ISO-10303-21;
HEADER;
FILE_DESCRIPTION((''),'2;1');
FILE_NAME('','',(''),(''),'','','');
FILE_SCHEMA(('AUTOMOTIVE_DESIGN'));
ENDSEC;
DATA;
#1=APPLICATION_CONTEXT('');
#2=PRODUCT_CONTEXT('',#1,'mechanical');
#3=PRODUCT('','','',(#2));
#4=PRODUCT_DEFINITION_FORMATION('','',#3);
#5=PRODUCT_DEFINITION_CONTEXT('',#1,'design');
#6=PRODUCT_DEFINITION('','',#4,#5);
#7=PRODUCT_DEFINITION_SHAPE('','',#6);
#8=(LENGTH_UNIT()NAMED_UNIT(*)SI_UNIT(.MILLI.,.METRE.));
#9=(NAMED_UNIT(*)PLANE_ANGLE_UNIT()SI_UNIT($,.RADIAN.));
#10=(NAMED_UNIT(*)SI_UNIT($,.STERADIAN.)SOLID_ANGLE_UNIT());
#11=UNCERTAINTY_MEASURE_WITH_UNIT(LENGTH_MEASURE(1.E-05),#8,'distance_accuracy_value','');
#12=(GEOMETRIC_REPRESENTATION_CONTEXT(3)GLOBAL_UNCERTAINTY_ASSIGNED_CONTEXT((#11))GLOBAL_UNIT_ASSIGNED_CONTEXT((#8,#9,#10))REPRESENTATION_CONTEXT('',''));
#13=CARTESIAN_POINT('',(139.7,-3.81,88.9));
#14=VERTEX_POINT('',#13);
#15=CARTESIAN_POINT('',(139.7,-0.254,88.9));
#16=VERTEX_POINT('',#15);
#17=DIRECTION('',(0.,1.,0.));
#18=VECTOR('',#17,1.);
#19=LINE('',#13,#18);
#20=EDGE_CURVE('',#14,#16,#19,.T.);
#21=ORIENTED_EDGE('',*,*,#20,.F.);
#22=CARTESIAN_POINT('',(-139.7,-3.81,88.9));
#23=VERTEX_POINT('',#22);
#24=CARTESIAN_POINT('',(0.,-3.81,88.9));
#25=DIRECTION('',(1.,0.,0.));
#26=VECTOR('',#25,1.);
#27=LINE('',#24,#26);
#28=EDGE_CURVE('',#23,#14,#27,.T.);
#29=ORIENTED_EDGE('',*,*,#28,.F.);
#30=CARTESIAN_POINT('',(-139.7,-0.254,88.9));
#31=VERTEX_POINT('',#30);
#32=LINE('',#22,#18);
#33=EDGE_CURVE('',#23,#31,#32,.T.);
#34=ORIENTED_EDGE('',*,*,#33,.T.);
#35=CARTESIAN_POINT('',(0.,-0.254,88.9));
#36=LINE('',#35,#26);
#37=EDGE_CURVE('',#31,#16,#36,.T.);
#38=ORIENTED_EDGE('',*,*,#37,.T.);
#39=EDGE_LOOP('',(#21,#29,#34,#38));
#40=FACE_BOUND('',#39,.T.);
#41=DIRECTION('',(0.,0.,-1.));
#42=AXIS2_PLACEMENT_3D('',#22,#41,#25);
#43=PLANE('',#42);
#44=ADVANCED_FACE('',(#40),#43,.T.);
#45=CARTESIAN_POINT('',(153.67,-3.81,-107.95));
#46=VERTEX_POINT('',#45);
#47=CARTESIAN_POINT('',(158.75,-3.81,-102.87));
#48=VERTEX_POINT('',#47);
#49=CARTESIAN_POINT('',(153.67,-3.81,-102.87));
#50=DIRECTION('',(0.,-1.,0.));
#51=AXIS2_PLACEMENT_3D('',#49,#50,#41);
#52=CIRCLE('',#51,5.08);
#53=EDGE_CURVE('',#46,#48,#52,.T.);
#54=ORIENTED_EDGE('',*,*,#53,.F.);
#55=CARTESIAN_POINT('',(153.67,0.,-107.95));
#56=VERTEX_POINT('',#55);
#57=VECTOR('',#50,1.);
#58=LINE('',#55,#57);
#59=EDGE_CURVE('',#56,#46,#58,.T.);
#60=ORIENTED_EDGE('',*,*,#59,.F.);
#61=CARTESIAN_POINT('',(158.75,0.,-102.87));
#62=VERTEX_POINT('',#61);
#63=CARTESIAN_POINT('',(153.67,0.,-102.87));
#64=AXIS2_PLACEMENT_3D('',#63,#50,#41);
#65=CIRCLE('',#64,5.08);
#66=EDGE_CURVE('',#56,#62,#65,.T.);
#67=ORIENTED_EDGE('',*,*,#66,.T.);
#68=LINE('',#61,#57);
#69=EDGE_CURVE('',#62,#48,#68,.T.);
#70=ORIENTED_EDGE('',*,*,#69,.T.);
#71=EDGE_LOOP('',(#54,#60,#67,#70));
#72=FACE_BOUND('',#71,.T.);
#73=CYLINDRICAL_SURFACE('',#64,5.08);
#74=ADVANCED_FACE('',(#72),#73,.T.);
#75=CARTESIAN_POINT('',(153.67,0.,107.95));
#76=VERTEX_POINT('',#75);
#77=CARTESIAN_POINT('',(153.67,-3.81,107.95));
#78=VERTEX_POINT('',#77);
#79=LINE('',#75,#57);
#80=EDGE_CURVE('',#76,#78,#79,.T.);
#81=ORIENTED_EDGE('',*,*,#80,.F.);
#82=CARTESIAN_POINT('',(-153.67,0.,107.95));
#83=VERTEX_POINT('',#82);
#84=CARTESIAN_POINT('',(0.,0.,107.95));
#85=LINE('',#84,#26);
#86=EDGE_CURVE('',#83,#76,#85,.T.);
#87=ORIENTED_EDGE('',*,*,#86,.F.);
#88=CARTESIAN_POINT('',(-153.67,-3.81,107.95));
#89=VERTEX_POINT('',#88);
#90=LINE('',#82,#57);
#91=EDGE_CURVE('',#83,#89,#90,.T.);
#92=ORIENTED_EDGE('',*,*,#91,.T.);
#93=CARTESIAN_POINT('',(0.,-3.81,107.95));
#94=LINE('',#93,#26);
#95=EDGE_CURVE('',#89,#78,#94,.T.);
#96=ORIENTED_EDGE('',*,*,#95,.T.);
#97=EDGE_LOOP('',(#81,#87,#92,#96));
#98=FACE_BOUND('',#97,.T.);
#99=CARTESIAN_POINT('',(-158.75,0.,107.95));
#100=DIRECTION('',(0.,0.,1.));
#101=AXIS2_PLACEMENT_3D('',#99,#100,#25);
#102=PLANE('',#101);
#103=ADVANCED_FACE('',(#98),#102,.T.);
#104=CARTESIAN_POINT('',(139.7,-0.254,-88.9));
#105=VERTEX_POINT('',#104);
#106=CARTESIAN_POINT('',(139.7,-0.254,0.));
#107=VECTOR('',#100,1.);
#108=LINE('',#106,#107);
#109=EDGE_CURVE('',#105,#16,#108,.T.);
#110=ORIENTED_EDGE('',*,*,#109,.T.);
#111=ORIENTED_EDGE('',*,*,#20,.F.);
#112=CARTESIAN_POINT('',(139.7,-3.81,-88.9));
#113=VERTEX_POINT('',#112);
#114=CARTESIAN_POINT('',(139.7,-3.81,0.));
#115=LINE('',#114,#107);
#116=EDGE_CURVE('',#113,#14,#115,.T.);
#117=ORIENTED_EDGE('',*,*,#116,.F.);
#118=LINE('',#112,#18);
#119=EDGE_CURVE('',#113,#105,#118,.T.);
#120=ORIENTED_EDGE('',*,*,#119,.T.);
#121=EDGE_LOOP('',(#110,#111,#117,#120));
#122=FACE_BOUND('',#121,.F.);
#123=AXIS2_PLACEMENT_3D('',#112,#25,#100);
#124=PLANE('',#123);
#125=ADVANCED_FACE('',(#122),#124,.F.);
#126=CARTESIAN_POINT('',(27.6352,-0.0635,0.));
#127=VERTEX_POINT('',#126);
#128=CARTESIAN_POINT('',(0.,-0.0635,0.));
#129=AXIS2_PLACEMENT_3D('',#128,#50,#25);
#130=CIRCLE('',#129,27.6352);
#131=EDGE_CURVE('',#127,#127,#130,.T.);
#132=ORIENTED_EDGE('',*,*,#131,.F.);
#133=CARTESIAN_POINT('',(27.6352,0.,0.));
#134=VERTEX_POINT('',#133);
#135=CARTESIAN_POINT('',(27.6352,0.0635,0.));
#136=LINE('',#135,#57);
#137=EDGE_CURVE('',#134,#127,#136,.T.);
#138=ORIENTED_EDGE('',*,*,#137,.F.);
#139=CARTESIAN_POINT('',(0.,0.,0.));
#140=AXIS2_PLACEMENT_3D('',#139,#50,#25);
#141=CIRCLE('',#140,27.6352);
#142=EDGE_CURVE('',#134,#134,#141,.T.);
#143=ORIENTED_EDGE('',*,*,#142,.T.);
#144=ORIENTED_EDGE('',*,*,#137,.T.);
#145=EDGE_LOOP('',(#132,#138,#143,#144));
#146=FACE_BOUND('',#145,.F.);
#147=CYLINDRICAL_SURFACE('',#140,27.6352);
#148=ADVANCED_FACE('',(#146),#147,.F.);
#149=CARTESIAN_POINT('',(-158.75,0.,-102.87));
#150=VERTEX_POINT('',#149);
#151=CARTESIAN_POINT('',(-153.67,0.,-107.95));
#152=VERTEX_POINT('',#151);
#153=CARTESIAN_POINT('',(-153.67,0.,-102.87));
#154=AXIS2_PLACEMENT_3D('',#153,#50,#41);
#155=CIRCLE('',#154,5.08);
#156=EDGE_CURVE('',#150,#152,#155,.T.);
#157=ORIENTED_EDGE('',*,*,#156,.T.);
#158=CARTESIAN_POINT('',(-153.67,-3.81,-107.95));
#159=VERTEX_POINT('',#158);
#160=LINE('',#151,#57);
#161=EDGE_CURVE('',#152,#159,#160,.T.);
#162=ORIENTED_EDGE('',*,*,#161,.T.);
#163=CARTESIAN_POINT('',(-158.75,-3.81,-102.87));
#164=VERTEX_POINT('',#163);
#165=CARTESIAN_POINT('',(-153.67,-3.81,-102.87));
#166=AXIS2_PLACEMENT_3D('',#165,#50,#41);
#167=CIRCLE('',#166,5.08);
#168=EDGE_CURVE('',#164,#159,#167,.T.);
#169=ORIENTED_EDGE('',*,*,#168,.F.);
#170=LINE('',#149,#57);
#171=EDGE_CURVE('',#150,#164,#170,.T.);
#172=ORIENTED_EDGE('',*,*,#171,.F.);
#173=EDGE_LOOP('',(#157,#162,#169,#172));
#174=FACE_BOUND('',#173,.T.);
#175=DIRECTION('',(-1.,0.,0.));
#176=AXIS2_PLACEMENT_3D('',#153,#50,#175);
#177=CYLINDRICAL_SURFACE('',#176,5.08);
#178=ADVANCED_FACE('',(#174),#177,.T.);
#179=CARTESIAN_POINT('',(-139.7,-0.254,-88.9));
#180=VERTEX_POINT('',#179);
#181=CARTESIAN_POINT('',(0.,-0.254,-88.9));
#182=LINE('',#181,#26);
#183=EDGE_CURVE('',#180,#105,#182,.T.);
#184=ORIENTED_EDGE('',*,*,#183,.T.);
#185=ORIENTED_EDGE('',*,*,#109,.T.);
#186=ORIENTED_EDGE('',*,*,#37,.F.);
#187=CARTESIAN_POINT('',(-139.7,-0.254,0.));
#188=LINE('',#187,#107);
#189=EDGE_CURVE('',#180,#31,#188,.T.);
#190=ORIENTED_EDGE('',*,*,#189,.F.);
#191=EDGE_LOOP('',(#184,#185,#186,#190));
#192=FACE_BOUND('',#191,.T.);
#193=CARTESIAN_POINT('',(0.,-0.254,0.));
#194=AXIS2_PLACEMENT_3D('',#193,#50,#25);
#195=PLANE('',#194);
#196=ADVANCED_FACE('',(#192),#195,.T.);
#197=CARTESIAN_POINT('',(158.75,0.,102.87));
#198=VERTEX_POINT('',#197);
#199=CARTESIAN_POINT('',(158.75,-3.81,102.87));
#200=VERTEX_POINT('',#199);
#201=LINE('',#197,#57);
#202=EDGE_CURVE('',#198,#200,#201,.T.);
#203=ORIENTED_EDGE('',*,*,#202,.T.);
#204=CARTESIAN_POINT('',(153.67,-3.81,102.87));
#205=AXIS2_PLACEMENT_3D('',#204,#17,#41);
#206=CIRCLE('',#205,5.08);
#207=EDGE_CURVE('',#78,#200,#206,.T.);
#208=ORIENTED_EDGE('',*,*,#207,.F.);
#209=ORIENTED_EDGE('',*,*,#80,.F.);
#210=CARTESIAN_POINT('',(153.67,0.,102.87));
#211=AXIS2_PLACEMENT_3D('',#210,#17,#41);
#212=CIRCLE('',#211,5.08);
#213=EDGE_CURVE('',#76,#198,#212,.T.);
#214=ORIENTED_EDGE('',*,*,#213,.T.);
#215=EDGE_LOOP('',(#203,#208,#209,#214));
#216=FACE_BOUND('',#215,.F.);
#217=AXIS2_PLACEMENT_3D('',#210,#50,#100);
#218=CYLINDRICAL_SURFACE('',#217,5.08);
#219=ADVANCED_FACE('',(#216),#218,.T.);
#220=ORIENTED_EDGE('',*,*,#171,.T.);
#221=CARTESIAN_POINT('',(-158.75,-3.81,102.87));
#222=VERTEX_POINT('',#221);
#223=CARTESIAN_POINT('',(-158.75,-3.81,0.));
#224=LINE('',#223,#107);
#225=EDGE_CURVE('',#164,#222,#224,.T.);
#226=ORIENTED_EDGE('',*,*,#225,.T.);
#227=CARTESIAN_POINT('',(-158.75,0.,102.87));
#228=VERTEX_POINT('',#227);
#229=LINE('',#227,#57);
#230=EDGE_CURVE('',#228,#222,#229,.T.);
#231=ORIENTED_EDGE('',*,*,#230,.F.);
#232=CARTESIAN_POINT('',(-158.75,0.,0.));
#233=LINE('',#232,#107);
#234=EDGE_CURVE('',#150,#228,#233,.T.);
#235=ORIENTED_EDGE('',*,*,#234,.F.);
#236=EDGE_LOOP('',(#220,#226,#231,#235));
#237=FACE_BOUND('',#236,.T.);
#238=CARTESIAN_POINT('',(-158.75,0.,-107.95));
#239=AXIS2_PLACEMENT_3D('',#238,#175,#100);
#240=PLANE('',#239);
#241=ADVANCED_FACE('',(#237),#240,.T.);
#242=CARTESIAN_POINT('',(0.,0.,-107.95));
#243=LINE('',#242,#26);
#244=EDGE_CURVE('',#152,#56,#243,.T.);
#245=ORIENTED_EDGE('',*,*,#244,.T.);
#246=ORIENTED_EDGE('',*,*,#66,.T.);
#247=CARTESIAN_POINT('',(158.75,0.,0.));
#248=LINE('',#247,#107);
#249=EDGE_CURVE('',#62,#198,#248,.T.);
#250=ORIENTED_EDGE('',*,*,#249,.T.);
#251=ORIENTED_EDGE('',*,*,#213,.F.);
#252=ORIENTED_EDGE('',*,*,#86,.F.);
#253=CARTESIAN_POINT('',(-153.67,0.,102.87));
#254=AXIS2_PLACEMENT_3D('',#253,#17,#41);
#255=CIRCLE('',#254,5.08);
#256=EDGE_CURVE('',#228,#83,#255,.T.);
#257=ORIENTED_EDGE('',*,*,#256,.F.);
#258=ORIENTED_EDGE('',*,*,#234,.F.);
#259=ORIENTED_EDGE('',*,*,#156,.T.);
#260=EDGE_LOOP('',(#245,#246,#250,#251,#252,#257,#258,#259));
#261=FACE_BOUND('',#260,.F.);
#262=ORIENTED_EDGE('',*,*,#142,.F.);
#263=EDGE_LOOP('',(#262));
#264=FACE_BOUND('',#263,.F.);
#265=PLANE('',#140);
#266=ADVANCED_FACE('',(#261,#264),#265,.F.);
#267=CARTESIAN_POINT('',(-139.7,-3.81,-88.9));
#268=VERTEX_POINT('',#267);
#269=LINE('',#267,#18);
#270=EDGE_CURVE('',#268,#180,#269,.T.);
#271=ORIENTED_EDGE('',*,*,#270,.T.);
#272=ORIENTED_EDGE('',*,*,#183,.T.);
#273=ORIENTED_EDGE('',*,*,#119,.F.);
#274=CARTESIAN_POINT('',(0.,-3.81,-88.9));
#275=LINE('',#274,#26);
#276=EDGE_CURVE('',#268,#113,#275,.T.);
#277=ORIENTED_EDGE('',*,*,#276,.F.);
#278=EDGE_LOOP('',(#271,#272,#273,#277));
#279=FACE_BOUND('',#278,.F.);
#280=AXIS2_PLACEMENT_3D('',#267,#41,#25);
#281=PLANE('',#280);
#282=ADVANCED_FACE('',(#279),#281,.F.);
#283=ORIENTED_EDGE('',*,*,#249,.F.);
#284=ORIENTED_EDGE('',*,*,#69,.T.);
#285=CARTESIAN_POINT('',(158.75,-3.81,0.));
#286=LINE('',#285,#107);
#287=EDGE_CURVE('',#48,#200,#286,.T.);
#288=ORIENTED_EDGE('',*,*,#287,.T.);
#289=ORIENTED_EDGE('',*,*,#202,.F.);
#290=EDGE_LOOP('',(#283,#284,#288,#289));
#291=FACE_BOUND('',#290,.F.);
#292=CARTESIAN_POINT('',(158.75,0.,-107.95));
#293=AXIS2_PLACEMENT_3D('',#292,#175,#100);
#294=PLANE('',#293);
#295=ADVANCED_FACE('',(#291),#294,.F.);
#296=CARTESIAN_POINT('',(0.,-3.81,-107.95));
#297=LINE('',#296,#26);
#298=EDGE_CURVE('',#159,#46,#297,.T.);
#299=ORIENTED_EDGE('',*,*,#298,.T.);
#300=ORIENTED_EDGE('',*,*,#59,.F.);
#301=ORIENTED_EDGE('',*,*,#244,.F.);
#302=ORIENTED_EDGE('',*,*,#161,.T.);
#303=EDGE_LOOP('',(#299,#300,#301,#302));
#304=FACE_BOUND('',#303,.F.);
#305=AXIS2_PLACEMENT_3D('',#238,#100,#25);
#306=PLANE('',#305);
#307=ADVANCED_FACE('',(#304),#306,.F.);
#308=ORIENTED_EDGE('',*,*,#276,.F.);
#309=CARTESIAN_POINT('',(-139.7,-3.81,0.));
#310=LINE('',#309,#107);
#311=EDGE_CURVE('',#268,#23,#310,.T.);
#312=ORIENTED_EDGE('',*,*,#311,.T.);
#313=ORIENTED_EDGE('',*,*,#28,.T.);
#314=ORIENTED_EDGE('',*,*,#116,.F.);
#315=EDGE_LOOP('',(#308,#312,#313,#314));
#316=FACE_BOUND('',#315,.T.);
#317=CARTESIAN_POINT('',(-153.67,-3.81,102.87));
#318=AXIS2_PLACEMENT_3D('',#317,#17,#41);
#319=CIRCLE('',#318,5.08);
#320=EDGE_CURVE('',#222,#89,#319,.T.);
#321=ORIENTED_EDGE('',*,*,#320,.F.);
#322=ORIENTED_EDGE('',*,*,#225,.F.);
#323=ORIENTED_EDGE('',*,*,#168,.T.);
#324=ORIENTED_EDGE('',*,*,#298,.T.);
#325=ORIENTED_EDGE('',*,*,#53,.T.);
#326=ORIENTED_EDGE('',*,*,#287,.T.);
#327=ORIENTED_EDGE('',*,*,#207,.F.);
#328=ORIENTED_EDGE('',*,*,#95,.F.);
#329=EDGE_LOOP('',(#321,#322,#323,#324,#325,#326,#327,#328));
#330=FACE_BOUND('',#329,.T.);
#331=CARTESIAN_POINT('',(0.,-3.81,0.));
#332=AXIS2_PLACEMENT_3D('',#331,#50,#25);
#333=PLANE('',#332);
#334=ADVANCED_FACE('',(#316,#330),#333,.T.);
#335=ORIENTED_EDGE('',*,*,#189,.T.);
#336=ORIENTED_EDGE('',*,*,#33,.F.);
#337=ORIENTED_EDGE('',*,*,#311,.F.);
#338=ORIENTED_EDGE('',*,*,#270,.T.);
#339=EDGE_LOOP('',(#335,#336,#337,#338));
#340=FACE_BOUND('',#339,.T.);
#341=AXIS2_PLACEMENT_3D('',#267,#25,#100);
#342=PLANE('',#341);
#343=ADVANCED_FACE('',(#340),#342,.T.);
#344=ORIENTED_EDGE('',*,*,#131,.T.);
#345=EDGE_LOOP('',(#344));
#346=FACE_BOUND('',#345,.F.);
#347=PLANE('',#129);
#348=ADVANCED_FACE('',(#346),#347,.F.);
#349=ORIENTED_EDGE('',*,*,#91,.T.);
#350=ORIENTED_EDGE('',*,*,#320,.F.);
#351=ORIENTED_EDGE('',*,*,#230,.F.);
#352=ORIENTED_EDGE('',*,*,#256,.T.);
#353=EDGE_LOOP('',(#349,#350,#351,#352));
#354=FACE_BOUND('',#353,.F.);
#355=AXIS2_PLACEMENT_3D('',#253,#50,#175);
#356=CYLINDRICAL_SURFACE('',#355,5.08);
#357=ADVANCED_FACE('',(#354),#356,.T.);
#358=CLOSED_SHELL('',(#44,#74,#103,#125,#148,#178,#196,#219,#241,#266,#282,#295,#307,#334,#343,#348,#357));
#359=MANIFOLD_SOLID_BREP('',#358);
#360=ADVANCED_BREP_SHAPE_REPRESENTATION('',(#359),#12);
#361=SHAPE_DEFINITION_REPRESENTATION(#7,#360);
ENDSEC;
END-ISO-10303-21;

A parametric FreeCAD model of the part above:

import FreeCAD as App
import Part
import Sketcher
Q = App.Units.Quantity


def edges_at(feature, points):
    """Names of the edges that pass closest to the given points."""
    edges = feature.Shape.Edges
    near = lambda p: min(range(len(edges)), key=lambda i: edges[i].distToShape(Part.Vertex(*p))[0])
    return sorted({f"Edge{near(p) + 1}" for p in points})

doc = App.newDocument("Part")
params = doc.addObject("Spreadsheet::Sheet", "Params")
for row, (alias, value) in enumerate([
    ("sketch1_width", "12.5 in"),
    ("sketch1_height", "8.5 in"),
    ("pad1_length", "0.15 in"),
    ("fillet_radius", "0.2 in"),
    ("fillet2_radius", "0.2 in"),
    ("sketch2_width", "11 in"),
    ("sketch2_height", "7 in"),
    ("pocket1_length", "1 in"),
    ("sketch3_width", "11 in"),
    ("sketch3_height", "7 in"),
    ("pad2_length", "0.01 in"),
    ("sketch4_diameter", "2.176 in"),
    ("pocket2_length", "0.005 in"),
], start=1):
    params.set(f"A{row}", alias)
    params.set(f"B{row}", "=" + value)
    params.setAlias(f"B{row}", alias)

body = doc.addObject("PartDesign::Body", "Body")

# Sketch on XZ plane
sketch1 = body.newObject("Sketcher::SketchObject", "Sketch")
sketch1.AttachmentSupport = (doc.getObject("XZ_Plane"), [""])
sketch1.MapMode = "FlatFace"
sketch1.addGeometry(Part.LineSegment(App.Vector(-159, 108, 0), App.Vector(-159, -108, 0)), False)
sketch1.addGeometry(Part.LineSegment(App.Vector(-159, -108, 0), App.Vector(159, -108, 0)), False)
sketch1.addGeometry(Part.LineSegment(App.Vector(159, -108, 0), App.Vector(159, 108, 0)), False)
sketch1.addGeometry(Part.LineSegment(App.Vector(159, 108, 0), App.Vector(-159, 108, 0)), False)
sketch1.addConstraint(Sketcher.Constraint("Coincident", 0, 2, 1, 1))
sketch1.addConstraint(Sketcher.Constraint("Coincident", 1, 2, 2, 1))
sketch1.addConstraint(Sketcher.Constraint("Coincident", 2, 2, 3, 1))
sketch1.addConstraint(Sketcher.Constraint("Coincident", 3, 2, 0, 1))
sketch1.addConstraint(Sketcher.Constraint("Vertical", 0))
sketch1.addConstraint(Sketcher.Constraint("Horizontal", 1))
sketch1.addConstraint(Sketcher.Constraint("Vertical", 2))
sketch1.addConstraint(Sketcher.Constraint("Horizontal", 3))
sketch1.addConstraint(Sketcher.Constraint("Symmetric", 0, 2, 2, 2, -1, 1))
sketch1.addConstraint(Sketcher.Constraint("DistanceX", 1, 1, 1, 2, Q("12.5 in")))
sketch1.addConstraint(Sketcher.Constraint("DistanceY", 0, 2, 0, 1, Q("8.5 in")))
sketch1.setExpression("Constraints[9]", "Params.sketch1_width")
sketch1.setExpression("Constraints[10]", "Params.sketch1_height")
pad1 = body.newObject("PartDesign::Pad", "Pad")
pad1.Profile = sketch1
pad1.setExpression("Length", "Params.pad1_length")
doc.recompute()

fillet = body.newObject("PartDesign::Fillet", "Fillet")
fillet.Base = (pad1, edges_at(pad1, [(-158.75, -1.905, -107.95)]))
fillet.setExpression("Radius", "Params.fillet_radius")
doc.recompute()

fillet2 = body.newObject("PartDesign::Fillet", "Fillet001")
fillet2.Base = (fillet, edges_at(fillet, [(-158.75, -1.905, 107.95), (158.75, -1.905, 107.95), (158.75, -1.905, -107.95)]))
fillet2.setExpression("Radius", "Params.fillet2_radius")

# Sketch on XZ plane
sketch2 = body.newObject("Sketcher::SketchObject", "Sketch001")
sketch2.AttachmentSupport = (doc.getObject("XZ_Plane"), [""])
sketch2.MapMode = "FlatFace"
sketch2.AttachmentOffset = App.Placement(App.Vector(0, 0, 0.15 * 25.4), App.Rotation())
sketch2.addGeometry(Part.LineSegment(App.Vector(-140, 89, 0), App.Vector(-140, -89, 0)), False)
sketch2.addGeometry(Part.LineSegment(App.Vector(-140, -89, 0), App.Vector(140, -89, 0)), False)
sketch2.addGeometry(Part.LineSegment(App.Vector(140, -89, 0), App.Vector(140, 89, 0)), False)
sketch2.addGeometry(Part.LineSegment(App.Vector(140, 89, 0), App.Vector(-140, 89, 0)), False)
sketch2.addConstraint(Sketcher.Constraint("Coincident", 0, 2, 1, 1))
sketch2.addConstraint(Sketcher.Constraint("Coincident", 1, 2, 2, 1))
sketch2.addConstraint(Sketcher.Constraint("Coincident", 2, 2, 3, 1))
sketch2.addConstraint(Sketcher.Constraint("Coincident", 3, 2, 0, 1))
sketch2.addConstraint(Sketcher.Constraint("Vertical", 0))
sketch2.addConstraint(Sketcher.Constraint("Horizontal", 1))
sketch2.addConstraint(Sketcher.Constraint("Vertical", 2))
sketch2.addConstraint(Sketcher.Constraint("Horizontal", 3))
sketch2.addConstraint(Sketcher.Constraint("Symmetric", 0, 2, 2, 2, -1, 1))
sketch2.addConstraint(Sketcher.Constraint("DistanceX", 1, 1, 1, 2, Q("11 in")))
sketch2.addConstraint(Sketcher.Constraint("DistanceY", 0, 2, 0, 1, Q("7 in")))
sketch2.setExpression("Constraints[9]", "Params.sketch2_width")
sketch2.setExpression("Constraints[10]", "Params.sketch2_height")
pocket1 = body.newObject("PartDesign::Pocket", "Pocket")
pocket1.Profile = sketch2
pocket1.setExpression("Length", "Params.pocket1_length")

# Sketch on XZ plane
sketch3 = body.newObject("Sketcher::SketchObject", "Sketch002")
sketch3.AttachmentSupport = (doc.getObject("XZ_Plane"), [""])
sketch3.MapMode = "FlatFace"
sketch3.addGeometry(Part.LineSegment(App.Vector(-140, 89, 0), App.Vector(-140, -89, 0)), False)
sketch3.addGeometry(Part.LineSegment(App.Vector(-140, -89, 0), App.Vector(140, -89, 0)), False)
sketch3.addGeometry(Part.LineSegment(App.Vector(140, -89, 0), App.Vector(140, 89, 0)), False)
sketch3.addGeometry(Part.LineSegment(App.Vector(140, 89, 0), App.Vector(-140, 89, 0)), False)
sketch3.addConstraint(Sketcher.Constraint("Coincident", 0, 2, 1, 1))
sketch3.addConstraint(Sketcher.Constraint("Coincident", 1, 2, 2, 1))
sketch3.addConstraint(Sketcher.Constraint("Coincident", 2, 2, 3, 1))
sketch3.addConstraint(Sketcher.Constraint("Coincident", 3, 2, 0, 1))
sketch3.addConstraint(Sketcher.Constraint("Vertical", 0))
sketch3.addConstraint(Sketcher.Constraint("Horizontal", 1))
sketch3.addConstraint(Sketcher.Constraint("Vertical", 2))
sketch3.addConstraint(Sketcher.Constraint("Horizontal", 3))
sketch3.addConstraint(Sketcher.Constraint("Symmetric", 0, 2, 2, 2, -1, 1))
sketch3.addConstraint(Sketcher.Constraint("DistanceX", 1, 1, 1, 2, Q("11 in")))
sketch3.addConstraint(Sketcher.Constraint("DistanceY", 0, 2, 0, 1, Q("7 in")))
sketch3.setExpression("Constraints[9]", "Params.sketch3_width")
sketch3.setExpression("Constraints[10]", "Params.sketch3_height")
pad2 = body.newObject("PartDesign::Pad", "Pad001")
pad2.Profile = sketch3
pad2.setExpression("Length", "Params.pad2_length")

# Sketch on XZ plane
sketch4 = body.newObject("Sketcher::SketchObject", "Sketch003")
sketch4.AttachmentSupport = (doc.getObject("XZ_Plane"), [""])
sketch4.MapMode = "FlatFace"
sketch4.addGeometry(Part.Circle(App.Vector(0, 0, 0), App.Vector(0, 0, 1), 28), False)
sketch4.addConstraint(Sketcher.Constraint("Coincident", 0, 3, -1, 1))
sketch4.addConstraint(Sketcher.Constraint("Diameter", 0, Q("2.176 in")))
sketch4.setExpression("Constraints[1]", "Params.sketch4_diameter")
pocket2 = body.newObject("PartDesign::Pocket", "Pocket001")
pocket2.Profile = sketch4
pocket2.setExpression("Length", "Params.pocket2_length")
pocket2.Midplane = True

doc.recompute()
